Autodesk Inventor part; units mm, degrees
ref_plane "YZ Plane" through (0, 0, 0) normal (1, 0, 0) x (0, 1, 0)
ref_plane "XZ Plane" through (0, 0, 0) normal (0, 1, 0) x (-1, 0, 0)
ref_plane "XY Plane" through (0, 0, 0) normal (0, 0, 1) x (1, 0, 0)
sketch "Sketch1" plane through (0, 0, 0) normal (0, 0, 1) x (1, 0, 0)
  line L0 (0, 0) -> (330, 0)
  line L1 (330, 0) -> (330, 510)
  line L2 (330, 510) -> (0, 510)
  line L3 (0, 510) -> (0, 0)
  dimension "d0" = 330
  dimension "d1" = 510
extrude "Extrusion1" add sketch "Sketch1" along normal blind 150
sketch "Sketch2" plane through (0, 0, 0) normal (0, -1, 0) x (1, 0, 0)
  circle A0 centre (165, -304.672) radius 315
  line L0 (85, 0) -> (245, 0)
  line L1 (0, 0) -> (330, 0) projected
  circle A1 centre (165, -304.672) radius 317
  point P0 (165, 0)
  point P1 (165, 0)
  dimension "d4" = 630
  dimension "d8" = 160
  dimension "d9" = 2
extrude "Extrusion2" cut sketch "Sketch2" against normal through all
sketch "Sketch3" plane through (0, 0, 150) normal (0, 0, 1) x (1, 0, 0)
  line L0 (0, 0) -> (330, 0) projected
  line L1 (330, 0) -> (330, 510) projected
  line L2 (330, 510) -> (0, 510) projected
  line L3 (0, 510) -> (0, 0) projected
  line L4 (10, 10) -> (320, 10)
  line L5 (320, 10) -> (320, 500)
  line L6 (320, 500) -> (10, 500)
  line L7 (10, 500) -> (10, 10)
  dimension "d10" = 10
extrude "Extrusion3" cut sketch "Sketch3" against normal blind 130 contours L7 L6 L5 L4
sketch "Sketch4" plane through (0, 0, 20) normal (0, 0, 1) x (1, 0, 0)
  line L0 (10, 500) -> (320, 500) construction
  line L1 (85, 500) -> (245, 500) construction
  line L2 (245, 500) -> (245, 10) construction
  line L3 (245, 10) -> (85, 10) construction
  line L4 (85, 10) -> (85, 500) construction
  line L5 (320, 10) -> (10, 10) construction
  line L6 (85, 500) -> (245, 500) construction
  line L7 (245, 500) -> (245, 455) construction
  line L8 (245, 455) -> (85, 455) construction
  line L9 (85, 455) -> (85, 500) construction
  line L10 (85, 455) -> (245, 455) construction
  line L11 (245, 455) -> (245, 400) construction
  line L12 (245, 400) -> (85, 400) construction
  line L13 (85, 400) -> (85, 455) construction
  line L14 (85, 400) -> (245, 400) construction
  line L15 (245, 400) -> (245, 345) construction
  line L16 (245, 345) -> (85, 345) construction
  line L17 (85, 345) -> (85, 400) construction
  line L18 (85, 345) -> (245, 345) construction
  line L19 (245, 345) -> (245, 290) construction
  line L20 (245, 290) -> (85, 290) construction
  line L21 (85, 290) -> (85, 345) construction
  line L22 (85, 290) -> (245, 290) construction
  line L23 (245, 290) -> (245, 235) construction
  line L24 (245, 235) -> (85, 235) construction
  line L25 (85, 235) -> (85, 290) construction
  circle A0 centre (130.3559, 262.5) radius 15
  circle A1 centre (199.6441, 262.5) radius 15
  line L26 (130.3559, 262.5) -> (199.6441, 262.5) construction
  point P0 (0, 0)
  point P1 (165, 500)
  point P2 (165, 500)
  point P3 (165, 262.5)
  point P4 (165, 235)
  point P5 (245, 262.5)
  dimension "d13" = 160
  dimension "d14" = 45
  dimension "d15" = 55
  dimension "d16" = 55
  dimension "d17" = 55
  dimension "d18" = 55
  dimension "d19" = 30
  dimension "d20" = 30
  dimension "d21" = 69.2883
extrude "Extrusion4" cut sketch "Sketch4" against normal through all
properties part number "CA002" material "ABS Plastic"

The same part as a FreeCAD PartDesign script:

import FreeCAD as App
import Part
import Sketcher
from FreeCAD import Vector
Q = App.Units.Quantity


def add_polygon(sketch, points):
    """Adds a closed chain of lines whose ends are joined by coincident constraints."""
    first, n = sketch.GeometryCount, len(points)
    for a, b in zip(points, points[1:] + points[:1]):
        sketch.addGeometry(Part.LineSegment(App.Vector(*a, 0), App.Vector(*b, 0)), False)
    for i in range(n):
        sketch.addConstraint(Sketcher.Constraint("Coincident", first + i, 2, first + (i + 1) % n, 1))

doc = App.newDocument("Part")
params = doc.addObject("Spreadsheet::Sheet", "Params")
for row, (alias, value) in enumerate([
    ("sketch1_width", "330 mm"),
    ("sketch1_height", "510 mm"),
    ("pad1_length", "150 mm"),
    ("sketch2_diameter", "634 mm"),
    ("sketch3_width", "310 mm"),
    ("sketch3_height", "490 mm"),
    ("pocket2_length", "130 mm"),
    ("sketch4_diameter", "30 mm"),
], start=1):
    params.set(f"A{row}", alias)
    params.set(f"B{row}", "=" + value)
    params.setAlias(f"B{row}", alias)

body = doc.addObject("PartDesign::Body", "Body")

sketch1 = body.newObject("Sketcher::SketchObject", "Sketch")
sketch1.AttachmentSupport = (doc.getObject("XY_Plane"), [""])
sketch1.MapMode = "FlatFace"
add_polygon(sketch1, [(0, 510), (0, 0), (330, 0), (330, 510)])
sketch1.addConstraint([
    Sketcher.Constraint("Vertical", 0),
    Sketcher.Constraint("Horizontal", 1),
    Sketcher.Constraint("Vertical", 2),
    Sketcher.Constraint("Horizontal", 3),
    Sketcher.Constraint("Coincident", 0, 2, -1, 1),
    Sketcher.Constraint("DistanceX", 1, 1, 1, 2, Q("330 mm")),
    Sketcher.Constraint("DistanceY", 0, 2, 0, 1, Q("510 mm")),
])
sketch1.setExpression("Constraints[9]", "Params.sketch1_width")
sketch1.setExpression("Constraints[10]", "Params.sketch1_height")
pad1 = body.newObject("PartDesign::Pad", "Pad")
pad1.Profile = sketch1
pad1.setExpression("Length", "Params.pad1_length")

sketch2 = body.newObject("Sketcher::SketchObject", "Sketch001")
sketch2.AttachmentSupport = (doc.getObject("XZ_Plane"), [""])
sketch2.MapMode = "FlatFace"
sketch2.addGeometry(Part.Circle(Vector(165, -305, 0), Vector(0, 0, 1), 317), False)
sketch2.addConstraint([
    Sketcher.Constraint("Diameter", 0, Q("634 mm")),
    Sketcher.Constraint("DistanceX", -1, 1, 0, 3, Q("165 mm")),
    Sketcher.Constraint("DistanceY", 0, 3, -1, 1, Q("304.672 mm")),
])
sketch2.setExpression("Constraints[0]", "Params.sketch2_diameter")
pocket1 = body.newObject("PartDesign::Pocket", "Pocket")
pocket1.Profile = sketch2
pocket1.Type = "ThroughAll"

sketch3 = body.newObject("Sketcher::SketchObject", "Sketch002")
sketch3.AttachmentSupport = (doc.getObject("XY_Plane"), [""])
sketch3.MapMode = "FlatFace"
sketch3.AttachmentOffset = App.Placement(Vector(0, 0, 150), App.Rotation())
add_polygon(sketch3, [(10, 500), (10, 10), (320, 10), (320, 500)])
sketch3.addConstraint([
    Sketcher.Constraint("Vertical", 0),
    Sketcher.Constraint("Horizontal", 1),
    Sketcher.Constraint("Vertical", 2),
    Sketcher.Constraint("Horizontal", 3),
    Sketcher.Constraint("DistanceX", -1, 1, 0, 2, Q("10 mm")),
    Sketcher.Constraint("DistanceY", -1, 1, 0, 2, Q("10 mm")),
    Sketcher.Constraint("DistanceX", 1, 1, 1, 2, Q("310 mm")),
    Sketcher.Constraint("DistanceY", 0, 2, 0, 1, Q("490 mm")),
])
sketch3.setExpression("Constraints[10]", "Params.sketch3_width")
sketch3.setExpression("Constraints[11]", "Params.sketch3_height")
pocket2 = body.newObject("PartDesign::Pocket", "Pocket001")
pocket2.Profile = sketch3
pocket2.setExpression("Length", "Params.pocket2_length")

sketch4 = body.newObject("Sketcher::SketchObject", "Sketch003")
sketch4.AttachmentSupport = (doc.getObject("XY_Plane"), [""])
sketch4.MapMode = "FlatFace"
sketch4.AttachmentOffset = App.Placement(Vector(0, 0, 20), App.Rotation())
sketch4.addGeometry([
    Part.Circle(Vector(130, 262, 0), Vector(0, 0, 1), 15),
    Part.Circle(Vector(200, 262, 0), Vector(0, 0, 1), 15),
], False)
sketch4.addConstraint([
    Sketcher.Constraint("Equal", 0, 1),
    Sketcher.Constraint("Horizontal", 0, 3, 1, 3),
    Sketcher.Constraint("Diameter", 0, Q("30 mm")),
    Sketcher.Constraint("DistanceY", -1, 1, 0, 3, Q("262.5 mm")),
    Sketcher.Constraint("DistanceX", 0, 3, 1, 3, Q("69.2882 mm")),
    Sketcher.Constraint("DistanceX", -1, 1, 0, 3, Q("130.356 mm")),
])
sketch4.setExpression("Constraints[2]", "Params.sketch4_diameter")
pocket3 = body.newObject("PartDesign::Pocket", "Pocket002")
pocket3.Profile = sketch4
pocket3.Type = "ThroughAll"

doc.recompute()
